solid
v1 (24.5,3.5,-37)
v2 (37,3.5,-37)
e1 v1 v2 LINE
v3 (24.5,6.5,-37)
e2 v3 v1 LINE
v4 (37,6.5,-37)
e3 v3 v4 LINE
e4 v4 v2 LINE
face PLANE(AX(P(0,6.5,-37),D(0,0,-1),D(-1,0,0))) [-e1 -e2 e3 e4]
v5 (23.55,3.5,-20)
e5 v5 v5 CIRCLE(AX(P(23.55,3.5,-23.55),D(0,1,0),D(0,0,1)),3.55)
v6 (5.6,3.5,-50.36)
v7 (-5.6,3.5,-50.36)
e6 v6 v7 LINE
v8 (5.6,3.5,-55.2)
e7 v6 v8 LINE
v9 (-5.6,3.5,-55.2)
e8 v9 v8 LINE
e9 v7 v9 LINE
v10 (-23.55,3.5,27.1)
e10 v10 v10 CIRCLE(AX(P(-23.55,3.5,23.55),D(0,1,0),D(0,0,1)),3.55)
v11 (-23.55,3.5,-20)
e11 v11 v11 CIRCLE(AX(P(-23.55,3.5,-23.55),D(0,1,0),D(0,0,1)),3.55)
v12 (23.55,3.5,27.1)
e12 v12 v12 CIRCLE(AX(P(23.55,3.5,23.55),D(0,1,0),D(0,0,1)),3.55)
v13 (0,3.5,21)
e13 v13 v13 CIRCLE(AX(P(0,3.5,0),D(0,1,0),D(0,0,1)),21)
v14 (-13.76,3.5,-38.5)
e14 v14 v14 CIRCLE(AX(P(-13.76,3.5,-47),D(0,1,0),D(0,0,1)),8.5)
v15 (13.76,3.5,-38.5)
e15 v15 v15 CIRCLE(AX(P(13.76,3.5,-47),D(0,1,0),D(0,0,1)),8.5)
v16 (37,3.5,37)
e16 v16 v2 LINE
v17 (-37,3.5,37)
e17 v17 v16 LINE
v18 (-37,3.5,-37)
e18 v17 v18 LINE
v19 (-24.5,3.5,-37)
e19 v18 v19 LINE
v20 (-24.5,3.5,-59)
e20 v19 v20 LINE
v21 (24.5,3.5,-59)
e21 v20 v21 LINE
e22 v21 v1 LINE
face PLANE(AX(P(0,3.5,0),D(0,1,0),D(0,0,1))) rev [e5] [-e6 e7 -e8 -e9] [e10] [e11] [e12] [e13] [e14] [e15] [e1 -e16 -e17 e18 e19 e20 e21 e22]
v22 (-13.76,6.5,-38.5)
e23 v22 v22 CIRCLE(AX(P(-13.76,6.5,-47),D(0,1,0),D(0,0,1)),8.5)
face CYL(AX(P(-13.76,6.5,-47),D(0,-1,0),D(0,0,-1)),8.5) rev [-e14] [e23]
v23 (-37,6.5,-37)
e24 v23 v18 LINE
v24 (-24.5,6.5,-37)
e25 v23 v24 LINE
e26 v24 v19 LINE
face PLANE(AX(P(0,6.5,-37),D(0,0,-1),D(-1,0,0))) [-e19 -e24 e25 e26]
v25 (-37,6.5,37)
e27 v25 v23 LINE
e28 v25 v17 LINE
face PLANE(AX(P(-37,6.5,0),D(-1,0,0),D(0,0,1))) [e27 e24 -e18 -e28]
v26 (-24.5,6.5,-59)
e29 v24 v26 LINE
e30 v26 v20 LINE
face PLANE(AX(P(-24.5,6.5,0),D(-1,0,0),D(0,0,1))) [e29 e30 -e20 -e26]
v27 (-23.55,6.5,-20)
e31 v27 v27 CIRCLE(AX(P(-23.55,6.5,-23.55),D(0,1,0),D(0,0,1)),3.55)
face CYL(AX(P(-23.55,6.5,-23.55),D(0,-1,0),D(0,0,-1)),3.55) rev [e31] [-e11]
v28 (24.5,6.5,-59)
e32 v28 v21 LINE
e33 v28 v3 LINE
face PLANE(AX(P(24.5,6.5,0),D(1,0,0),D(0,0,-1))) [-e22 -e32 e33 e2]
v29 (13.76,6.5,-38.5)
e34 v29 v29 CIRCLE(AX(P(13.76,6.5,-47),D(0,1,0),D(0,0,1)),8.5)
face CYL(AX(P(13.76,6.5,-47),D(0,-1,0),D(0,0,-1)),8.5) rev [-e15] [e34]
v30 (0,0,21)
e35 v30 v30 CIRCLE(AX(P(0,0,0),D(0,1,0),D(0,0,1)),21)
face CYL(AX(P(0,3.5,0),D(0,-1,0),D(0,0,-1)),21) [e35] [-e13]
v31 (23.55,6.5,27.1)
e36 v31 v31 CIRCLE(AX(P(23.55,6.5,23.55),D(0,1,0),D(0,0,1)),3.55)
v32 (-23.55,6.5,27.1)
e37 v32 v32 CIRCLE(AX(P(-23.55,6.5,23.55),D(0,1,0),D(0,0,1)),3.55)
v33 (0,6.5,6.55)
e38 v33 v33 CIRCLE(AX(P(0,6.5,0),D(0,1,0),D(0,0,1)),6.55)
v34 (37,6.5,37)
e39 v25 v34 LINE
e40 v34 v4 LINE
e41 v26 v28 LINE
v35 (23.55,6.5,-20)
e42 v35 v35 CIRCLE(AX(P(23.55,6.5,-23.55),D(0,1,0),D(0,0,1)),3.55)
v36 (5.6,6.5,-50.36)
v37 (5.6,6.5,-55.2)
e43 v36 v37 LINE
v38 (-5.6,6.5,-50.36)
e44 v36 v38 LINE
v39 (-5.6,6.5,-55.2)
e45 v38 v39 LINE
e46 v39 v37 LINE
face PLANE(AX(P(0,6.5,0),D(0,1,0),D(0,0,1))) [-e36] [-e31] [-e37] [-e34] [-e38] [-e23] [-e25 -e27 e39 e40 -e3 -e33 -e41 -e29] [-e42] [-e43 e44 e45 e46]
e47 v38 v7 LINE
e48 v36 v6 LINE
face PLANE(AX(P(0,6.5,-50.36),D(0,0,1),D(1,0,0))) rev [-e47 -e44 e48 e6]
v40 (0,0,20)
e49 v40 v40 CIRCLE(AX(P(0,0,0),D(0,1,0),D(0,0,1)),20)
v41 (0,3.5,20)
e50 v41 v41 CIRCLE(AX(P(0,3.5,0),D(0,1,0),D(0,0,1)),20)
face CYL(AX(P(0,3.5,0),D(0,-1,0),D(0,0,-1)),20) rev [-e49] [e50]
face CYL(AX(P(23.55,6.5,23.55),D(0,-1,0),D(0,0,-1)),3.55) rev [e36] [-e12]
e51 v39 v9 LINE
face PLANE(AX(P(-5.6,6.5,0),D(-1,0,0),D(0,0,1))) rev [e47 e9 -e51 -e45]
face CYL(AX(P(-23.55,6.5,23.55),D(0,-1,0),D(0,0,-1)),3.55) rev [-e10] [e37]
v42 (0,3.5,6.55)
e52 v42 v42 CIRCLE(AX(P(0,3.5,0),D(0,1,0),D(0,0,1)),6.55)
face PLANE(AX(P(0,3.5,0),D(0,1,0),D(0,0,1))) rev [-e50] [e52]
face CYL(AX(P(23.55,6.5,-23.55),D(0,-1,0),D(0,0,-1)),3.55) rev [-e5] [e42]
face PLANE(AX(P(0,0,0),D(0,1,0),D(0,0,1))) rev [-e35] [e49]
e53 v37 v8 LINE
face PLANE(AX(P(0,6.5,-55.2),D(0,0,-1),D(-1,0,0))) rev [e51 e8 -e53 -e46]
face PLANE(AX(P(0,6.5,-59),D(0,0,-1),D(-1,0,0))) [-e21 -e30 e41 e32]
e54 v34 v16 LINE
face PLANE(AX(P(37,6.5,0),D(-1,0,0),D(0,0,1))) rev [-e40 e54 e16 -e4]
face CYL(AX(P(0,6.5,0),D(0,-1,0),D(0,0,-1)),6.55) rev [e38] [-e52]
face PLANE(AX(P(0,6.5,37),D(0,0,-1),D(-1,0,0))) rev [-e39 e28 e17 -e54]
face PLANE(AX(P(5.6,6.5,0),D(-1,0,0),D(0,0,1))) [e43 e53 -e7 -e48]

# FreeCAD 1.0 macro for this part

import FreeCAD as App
import Part
import Sketcher


def add_polygon(sketch, points):
    """Adds a closed chain of lines whose ends are joined by coincident constraints."""
    first, n = sketch.GeometryCount, len(points)
    for a, b in zip(points, points[1:] + points[:1]):
        sketch.addGeometry(Part.LineSegment(App.Vector(*a, 0), App.Vector(*b, 0)), False)
    for i in range(n):
        sketch.addConstraint(Sketcher.Constraint("Coincident", first + i, 2, first + (i + 1) % n, 1))

doc = App.newDocument("Part")
body = doc.addObject("PartDesign::Body", "Body")

sketch1 = doc.addObject("Sketcher::SketchObject", "Sketch")
body.addObject(sketch1)
sketch1.AttachmentSupport = (doc.XZ_Plane, [""])
sketch1.MapMode = "FlatFace"
sketch1.addGeometry([
    Part.Circle(App.Vector(0, 0, 0), App.Vector(0, 0, 1), 21),
    Part.Circle(App.Vector(0, 0, 0), App.Vector(0, 0, 1), 20),
], False)
sketch1.addConstraint([
    Sketcher.Constraint("Coincident", 0, 3, -1, 1),
    Sketcher.Constraint("Coincident", 1, 3, -1, 1),
    Sketcher.Constraint("Diameter", 0, 42.0),
    Sketcher.Constraint("Diameter", 1, 40.0),
])
pad1 = doc.addObject("PartDesign::Pad", "Pad")
body.addObject(pad1)
pad1.Profile = sketch1
pad1.Length = 3.5
pad1.Reversed = True

sketch2 = doc.addObject("Sketcher::SketchObject", "Sketch001")
body.addObject(sketch2)
sketch2.AttachmentSupport = (doc.XZ_Plane, [""])
sketch2.MapMode = "FlatFace"
sketch2.AttachmentOffset = App.Placement(App.Vector(0, 0, -3.5), App.Rotation())
add_polygon(sketch2, [(-37, -37), (-37, 37), (37, 37), (37, -37), (24.5, -37), (24.5, -59), (-24.5, -59), (-24.5, -37)])
sketch2.addGeometry(Part.Circle(App.Vector(-23.6, 23.6, 0), App.Vector(0, 0, 1), 3.5), False)
sketch2.addGeometry(Part.Circle(App.Vector(23.6, 23.6, 0), App.Vector(0, 0, 1), 3.5), False)
sketch2.addGeometry(Part.Circle(App.Vector(0, 0, 0), App.Vector(0, 0, 1), 6.5), False)
sketch2.addGeometry(Part.Circle(App.Vector(-23.6, -23.6, 0), App.Vector(0, 0, 1), 3.5), False)
sketch2.addGeometry(Part.Circle(App.Vector(-13.8, -47, 0), App.Vector(0, 0, 1), 8.5), False)
sketch2.addGeometry(Part.Circle(App.Vector(23.6, -23.6, 0), App.Vector(0, 0, 1), 3.5), False)
add_polygon(sketch2, [(5.6, -50.4), (-5.6, -50.4), (-5.6, -55.2), (5.6, -55.2)])
sketch2.addGeometry(Part.Circle(App.Vector(13.8, -47, 0), App.Vector(0, 0, 1), 8.5), False)
sketch2.addConstraint([
    Sketcher.Constraint("Vertical", 0),
    Sketcher.Constraint("Horizontal", 1),
    Sketcher.Constraint("Vertical", 2),
    Sketcher.Constraint("Horizontal", 3),
    Sketcher.Constraint("Vertical", 4),
    Sketcher.Constraint("Horizontal", 5),
    Sketcher.Constraint("Vertical", 6),
    Sketcher.Constraint("Horizontal", 7),
    Sketcher.Constraint("Horizontal", 14),
    Sketcher.Constraint("Vertical", 15),
    Sketcher.Constraint("Horizontal", 16),
    Sketcher.Constraint("Vertical", 17),
    Sketcher.Constraint("Coincident", 10, 3, -1, 1),
    Sketcher.Constraint("Equal", 8, 9),
    Sketcher.Constraint("Equal", 9, 11),
    Sketcher.Constraint("Equal", 11, 13),
    Sketcher.Constraint("Equal", 12, 18),
    Sketcher.Constraint("Symmetric", 9, 3, 11, 3, -1, 1),
    Sketcher.Constraint("Symmetric", 8, 3, 13, 3, -1, 1),
    Sketcher.Constraint("Symmetric", 0, 2, 2, 2, -1, 1),
    Sketcher.Constraint("Symmetric", 8, 3, 9, 3, -2),
    Sketcher.Constraint("Symmetric", 12, 3, 18, 3, -2),
    Sketcher.Constraint("Symmetric", 3, 2, 6, 2, -2),
    Sketcher.Constraint("Equal", 1, 0),
    Sketcher.Constraint("Diameter", 12, 17.0),
    Sketcher.Constraint("Diameter", 8, 7.1),
    Sketcher.Constraint("Diameter", 10, 13.1),
    Sketcher.Constraint("DistanceX", 1, 1, 1, 2, 74.0),
    Sketcher.Constraint("DistanceX", 5, 2, 5, 1, 49.0),
    Sketcher.Constraint("DistanceY", 4, 2, 4, 1, 22.0),
    Sketcher.Constraint("DistanceX", 14, 2, 14, 1, 11.2),
    Sketcher.Constraint("DistanceY", 12, 3, -1, 1, 47.0),
    Sketcher.Constraint("DistanceY", 15, 2, 15, 1, 4.84),
    Sketcher.Constraint("DistanceX", 14, 2, -1, 1, 5.6),
    Sketcher.Constraint("DistanceY", 15, 2, -1, 1, 55.2),
    Sketcher.Constraint("DistanceX", 8, 3, 9, 3, 47.1),
    Sketcher.Constraint("DistanceY", 11, 3, 8, 3, 47.1),
    Sketcher.Constraint("DistanceX", 12, 3, -1, 1, 13.76),
])
pad2 = doc.addObject("PartDesign::Pad", "Pad001")
body.addObject(pad2)
pad2.Profile = sketch2
pad2.Length = 3
pad2.Reversed = True

doc.recompute()
